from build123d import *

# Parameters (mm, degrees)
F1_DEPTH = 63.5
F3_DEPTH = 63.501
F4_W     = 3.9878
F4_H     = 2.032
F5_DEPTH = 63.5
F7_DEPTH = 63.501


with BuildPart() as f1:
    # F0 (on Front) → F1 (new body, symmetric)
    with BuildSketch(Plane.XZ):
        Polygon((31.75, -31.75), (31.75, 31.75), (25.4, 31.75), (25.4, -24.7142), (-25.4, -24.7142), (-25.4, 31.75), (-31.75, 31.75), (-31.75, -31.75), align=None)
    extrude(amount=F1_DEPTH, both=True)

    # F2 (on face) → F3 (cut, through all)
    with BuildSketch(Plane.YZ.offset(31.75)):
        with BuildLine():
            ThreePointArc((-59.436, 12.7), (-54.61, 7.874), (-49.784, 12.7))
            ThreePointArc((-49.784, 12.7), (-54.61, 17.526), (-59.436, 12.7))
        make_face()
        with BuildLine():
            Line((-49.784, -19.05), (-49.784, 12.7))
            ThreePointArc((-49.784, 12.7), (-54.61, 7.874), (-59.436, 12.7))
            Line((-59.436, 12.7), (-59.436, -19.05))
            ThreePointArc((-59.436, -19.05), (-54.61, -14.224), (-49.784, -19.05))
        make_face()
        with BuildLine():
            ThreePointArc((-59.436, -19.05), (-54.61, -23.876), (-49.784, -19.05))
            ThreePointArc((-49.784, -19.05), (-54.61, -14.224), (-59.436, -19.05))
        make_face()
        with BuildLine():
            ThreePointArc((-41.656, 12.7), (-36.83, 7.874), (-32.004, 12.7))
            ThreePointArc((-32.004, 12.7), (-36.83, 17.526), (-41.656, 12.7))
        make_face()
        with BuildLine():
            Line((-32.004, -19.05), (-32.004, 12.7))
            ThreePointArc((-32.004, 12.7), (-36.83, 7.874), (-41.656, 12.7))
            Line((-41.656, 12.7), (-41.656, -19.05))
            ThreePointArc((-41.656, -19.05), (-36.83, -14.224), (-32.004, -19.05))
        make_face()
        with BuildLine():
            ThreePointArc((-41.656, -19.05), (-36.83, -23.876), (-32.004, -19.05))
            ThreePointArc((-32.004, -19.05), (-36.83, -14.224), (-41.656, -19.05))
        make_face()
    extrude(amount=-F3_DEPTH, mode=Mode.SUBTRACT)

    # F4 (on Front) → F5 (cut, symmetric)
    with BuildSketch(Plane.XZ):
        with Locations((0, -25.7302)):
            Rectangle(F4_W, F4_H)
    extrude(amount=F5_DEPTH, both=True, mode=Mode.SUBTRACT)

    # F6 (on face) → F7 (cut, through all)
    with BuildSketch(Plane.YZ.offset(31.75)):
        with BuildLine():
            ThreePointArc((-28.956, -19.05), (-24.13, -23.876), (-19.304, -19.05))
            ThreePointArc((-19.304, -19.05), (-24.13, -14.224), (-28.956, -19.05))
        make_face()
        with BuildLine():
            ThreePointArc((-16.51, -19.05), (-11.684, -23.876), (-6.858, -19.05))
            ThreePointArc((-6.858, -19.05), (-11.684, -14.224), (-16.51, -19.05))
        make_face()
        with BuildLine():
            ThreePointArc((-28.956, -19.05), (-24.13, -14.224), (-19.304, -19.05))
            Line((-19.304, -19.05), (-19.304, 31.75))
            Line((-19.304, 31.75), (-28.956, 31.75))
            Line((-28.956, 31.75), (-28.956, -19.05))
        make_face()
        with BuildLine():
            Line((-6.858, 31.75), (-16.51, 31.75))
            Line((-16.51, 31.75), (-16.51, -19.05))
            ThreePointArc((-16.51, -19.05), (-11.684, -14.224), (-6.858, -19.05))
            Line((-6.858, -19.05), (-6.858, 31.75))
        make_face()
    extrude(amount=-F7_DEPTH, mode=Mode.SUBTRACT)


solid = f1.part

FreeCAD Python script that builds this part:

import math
import FreeCAD as App
import Part
import Sketcher
Q = App.Units.Quantity

doc = App.newDocument("Part")
body = doc.addObject("PartDesign::Body", "Body")

sketch1 = doc.addObject("Sketcher::SketchObject", "Sketch")
body.addObject(sketch1)
sketch1.AttachmentSupport = (doc.XZ_Plane, [""])
sketch1.MapMode = "FlatFace"
sketch1.addGeometry(Part.LineSegment(App.Vector(31.75, -31.75, 0), App.Vector(31.75, 31.75, 0)), False)
sketch1.addGeometry(Part.LineSegment(App.Vector(31.75, 31.75, 0), App.Vector(25.4, 31.75, 0)), False)
sketch1.addGeometry(Part.LineSegment(App.Vector(25.4, 31.75, 0), App.Vector(25.4, -24.7142, 0)), False)
sketch1.addGeometry(Part.LineSegment(App.Vector(25.4, -24.7142, 0), App.Vector(-25.4, -24.7142, 0)), False)
sketch1.addGeometry(Part.LineSegment(App.Vector(-25.4, -24.7142, 0), App.Vector(-25.4, 31.75, 0)), False)
sketch1.addGeometry(Part.LineSegment(App.Vector(-25.4, 31.75, 0), App.Vector(-31.75, 31.75, 0)), False)
sketch1.addGeometry(Part.LineSegment(App.Vector(-31.75, 31.75, 0), App.Vector(-31.75, -31.75, 0)), False)
sketch1.addGeometry(Part.LineSegment(App.Vector(-31.75, -31.75, 0), App.Vector(31.75, -31.75, 0)), False)
sketch1.addConstraint(Sketcher.Constraint("Coincident", 0, 2, 1, 1))
sketch1.addConstraint(Sketcher.Constraint("Coincident", 1, 2, 2, 1))
sketch1.addConstraint(Sketcher.Constraint("Coincident", 2, 2, 3, 1))
sketch1.addConstraint(Sketcher.Constraint("Coincident", 3, 2, 4, 1))
sketch1.addConstraint(Sketcher.Constraint("Coincident", 4, 2, 5, 1))
sketch1.addConstraint(Sketcher.Constraint("Coincident", 5, 2, 6, 1))
sketch1.addConstraint(Sketcher.Constraint("Coincident", 6, 2, 7, 1))
sketch1.addConstraint(Sketcher.Constraint("Coincident", 7, 2, 0, 1))
sketch1.addConstraint(Sketcher.Constraint("Vertical", 0))
sketch1.addConstraint(Sketcher.Constraint("Horizontal", 1))
sketch1.addConstraint(Sketcher.Constraint("Vertical", 2))
sketch1.addConstraint(Sketcher.Constraint("Horizontal", 3))
sketch1.addConstraint(Sketcher.Constraint("Vertical", 4))
sketch1.addConstraint(Sketcher.Constraint("Horizontal", 5))
sketch1.addConstraint(Sketcher.Constraint("Vertical", 6))
sketch1.addConstraint(Sketcher.Constraint("Horizontal", 7))
sketch1.addConstraint(Sketcher.Constraint("Symmetric", 0, 2, 6, 2, -1, 1))
sketch1.addConstraint(Sketcher.Constraint("Symmetric", 1, 2, 4, 2, -2))
sketch1.addConstraint(Sketcher.Constraint("Equal", 7, 0))
sketch1.addConstraint(Sketcher.Constraint("DistanceX", 3, 2, 3, 1, Q("2 in")))
sketch1.addConstraint(Sketcher.Constraint("DistanceX", 7, 1, 7, 2, Q("2.5 in")))
sketch1.addConstraint(Sketcher.Constraint("DistanceY", 2, 2, 2, 1, Q("2.223 in")))
pad1 = doc.addObject("PartDesign::Pad", "Pad")
body.addObject(pad1)
pad1.Profile = sketch1
pad1.Length = Q("5 in")
pad1.Midplane = True

sketch2 = doc.addObject("Sketcher::SketchObject", "Sketch001")
body.addObject(sketch2)
sketch2.AttachmentSupport = (doc.YZ_Plane, [""])
sketch2.MapMode = "FlatFace"
sketch2.AttachmentOffset = App.Placement(App.Vector(0, 0, 1.25 * 25.4), App.Rotation())
sketch2.addGeometry(Part.ArcOfCircle(Part.Circle(App.Vector(-54.61, 12.7, 0), App.Vector(0, 0, 1), 4.826), math.radians(0), math.radians(180)), False)
sketch2.addGeometry(Part.LineSegment(App.Vector(-59.436, 12.7, 0), App.Vector(-59.436, -19.05, 0)), False)
sketch2.addGeometry(Part.ArcOfCircle(Part.Circle(App.Vector(-54.61, -19.05, 0), App.Vector(0, 0, 1), 4.826), math.radians(180), math.radians(360)), False)
sketch2.addGeometry(Part.LineSegment(App.Vector(-49.784, -19.05, 0), App.Vector(-49.784, 12.7, 0)), False)
sketch2.addGeometry(Part.ArcOfCircle(Part.Circle(App.Vector(-36.83, 12.7, 0), App.Vector(0, 0, 1), 4.826), math.radians(0), math.radians(180)), False)
sketch2.addGeometry(Part.LineSegment(App.Vector(-41.656, 12.7, 0), App.Vector(-41.656, -19.05, 0)), False)
sketch2.addGeometry(Part.ArcOfCircle(Part.Circle(App.Vector(-36.83, -19.05, 0), App.Vector(0, 0, 1), 4.826), math.radians(180), math.radians(360)), False)
sketch2.addGeometry(Part.LineSegment(App.Vector(-32.004, -19.05, 0), App.Vector(-32.004, 12.7, 0)), False)
sketch2.addConstraint(Sketcher.Constraint("Tangent", 0, 2, 1, 1))
sketch2.addConstraint(Sketcher.Constraint("Tangent", 1, 2, 2, 1))
sketch2.addConstraint(Sketcher.Constraint("Tangent", 2, 2, 3, 1))
sketch2.addConstraint(Sketcher.Constraint("Tangent", 3, 2, 0, 1))
sketch2.addConstraint(Sketcher.Constraint("Tangent", 4, 2, 5, 1))
sketch2.addConstraint(Sketcher.Constraint("Tangent", 5, 2, 6, 1))
sketch2.addConstraint(Sketcher.Constraint("Tangent", 6, 2, 7, 1))
sketch2.addConstraint(Sketcher.Constraint("Tangent", 7, 2, 4, 1))
sketch2.addConstraint(Sketcher.Constraint("Vertical", 1))
sketch2.addConstraint(Sketcher.Constraint("Vertical", 3))
sketch2.addConstraint(Sketcher.Constraint("Vertical", 5))
sketch2.addConstraint(Sketcher.Constraint("Vertical", 7))
sketch2.addConstraint(Sketcher.Constraint("Equal", 2, 4))
sketch2.addConstraint(Sketcher.Constraint("Horizontal", 0, 3, 4, 3))
sketch2.addConstraint(Sketcher.Constraint("Horizontal", 2, 3, 6, 3))
sketch2.addConstraint(Sketcher.Constraint("Radius", 0, Q("0.19 in")))
sketch2.addConstraint(Sketcher.Constraint("DistanceY", 1, 2, 1, 1, Q("1.25 in")))
sketch2.addConstraint(Sketcher.Constraint("DistanceY", -1, 1, 0, 3, Q("0.5 in")))
sketch2.addConstraint(Sketcher.Constraint("DistanceX", 0, 3, 4, 3, Q("0.7 in")))
sketch2.addConstraint(Sketcher.Constraint("DistanceX", 0, 3, -1, 1, Q("2.15 in")))
pocket1 = doc.addObject("PartDesign::Pocket", "Pocket")
body.addObject(pocket1)
pocket1.Profile = sketch2
pocket1.Type = "ThroughAll"

sketch3 = doc.addObject("Sketcher::SketchObject", "Sketch002")
body.addObject(sketch3)
sketch3.AttachmentSupport = (doc.XZ_Plane, [""])
sketch3.MapMode = "FlatFace"
sketch3.addGeometry(Part.LineSegment(App.Vector(-1.9939, -24.7142, 0), App.Vector(-1.9939, -26.7462, 0)), False)
sketch3.addGeometry(Part.LineSegment(App.Vector(-1.9939, -26.7462, 0), App.Vector(1.9939, -26.7462, 0)), False)
sketch3.addGeometry(Part.LineSegment(App.Vector(1.9939, -26.7462, 0), App.Vector(1.9939, -24.7142, 0)), False)
sketch3.addGeometry(Part.LineSegment(App.Vector(1.9939, -24.7142, 0), App.Vector(-1.9939, -24.7142, 0)), False)
sketch3.addConstraint(Sketcher.Constraint("Coincident", 0, 2, 1, 1))
sketch3.addConstraint(Sketcher.Constraint("Coincident", 1, 2, 2, 1))
sketch3.addConstraint(Sketcher.Constraint("Coincident", 2, 2, 3, 1))
sketch3.addConstraint(Sketcher.Constraint("Coincident", 3, 2, 0, 1))
sketch3.addConstraint(Sketcher.Constraint("Vertical", 0))
sketch3.addConstraint(Sketcher.Constraint("Horizontal", 1))
sketch3.addConstraint(Sketcher.Constraint("Vertical", 2))
sketch3.addConstraint(Sketcher.Constraint("Horizontal", 3))
sketch3.addConstraint(Sketcher.Constraint("DistanceY", 0, 2, 0, 1, Q("0.08 in")))
sketch3.addConstraint(Sketcher.Constraint("DistanceX", 1, 1, 1, 2, Q("0.157 in")))
sketch3.addConstraint(Sketcher.Constraint("DistanceY", 0, 2, -1, 1, Q("1.053 in")))
sketch3.addConstraint(Sketcher.Constraint("DistanceX", 0, 2, -1, 1, Q("0.0785 in")))
pocket2 = doc.addObject("PartDesign::Pocket", "Pocket001")
body.addObject(pocket2)
pocket2.Profile = sketch3
pocket2.Length = Q("5 in")
pocket2.Midplane = True

sketch4 = doc.addObject("Sketcher::SketchObject", "Sketch003")
body.addObject(sketch4)
sketch4.AttachmentSupport = (doc.YZ_Plane, [""])
sketch4.MapMode = "FlatFace"
sketch4.AttachmentOffset = App.Placement(App.Vector(0, 0, 1.25 * 25.4), App.Rotation())
sketch4.addGeometry(Part.ArcOfCircle(Part.Circle(App.Vector(-24.13, -19.05, 0), App.Vector(0, 0, 1), 4.826), math.radians(180), math.radians(360)), False)
sketch4.addGeometry(Part.LineSegment(App.Vector(-19.304, -19.05, 0), App.Vector(-19.304, 31.75, 0)), False)
sketch4.addGeometry(Part.LineSegment(App.Vector(-19.304, 31.75, 0), App.Vector(-28.956, 31.75, 0)), False)
sketch4.addGeometry(Part.LineSegment(App.Vector(-28.956, 31.75, 0), App.Vector(-28.956, -19.05, 0)), False)
sketch4.addGeometry(Part.ArcOfCircle(Part.Circle(App.Vector(-11.684, -19.05, 0), App.Vector(0, 0, 1), 4.826), math.radians(180), math.radians(360)), False)
sketch4.addGeometry(Part.LineSegment(App.Vector(-6.858, -19.05, 0), App.Vector(-6.858, 31.75, 0)), False)
sketch4.addGeometry(Part.LineSegment(App.Vector(-6.858, 31.75, 0), App.Vector(-16.51, 31.75, 0)), False)
sketch4.addGeometry(Part.LineSegment(App.Vector(-16.51, 31.75, 0), App.Vector(-16.51, -19.05, 0)), False)
sketch4.addConstraint(Sketcher.Constraint("Tangent", 0, 2, 1, 1))
sketch4.addConstraint(Sketcher.Constraint("Coincident", 1, 2, 2, 1))
sketch4.addConstraint(Sketcher.Constraint("Coincident", 2, 2, 3, 1))
sketch4.addConstraint(Sketcher.Constraint("Tangent", 3, 2, 0, 1))
sketch4.addConstraint(Sketcher.Constraint("Tangent", 4, 2, 5, 1))
sketch4.addConstraint(Sketcher.Constraint("Coincident", 5, 2, 6, 1))
sketch4.addConstraint(Sketcher.Constraint("Coincident", 6, 2, 7, 1))
sketch4.addConstraint(Sketcher.Constraint("Tangent", 7, 2, 4, 1))
sketch4.addConstraint(Sketcher.Constraint("Vertical", 1))
sketch4.addConstraint(Sketcher.Constraint("Horizontal", 2))
sketch4.addConstraint(Sketcher.Constraint("Vertical", 3))
sketch4.addConstraint(Sketcher.Constraint("Vertical", 5))
sketch4.addConstraint(Sketcher.Constraint("Horizontal", 6))
sketch4.addConstraint(Sketcher.Constraint("Vertical", 7))
sketch4.addConstraint(Sketcher.Constraint("Equal", 0, 4))
sketch4.addConstraint(Sketcher.Constraint("Horizontal", 0, 3, 4, 3))
sketch4.addConstraint(Sketcher.Constraint("Horizontal", 2, 2, 5, 2))
sketch4.addConstraint(Sketcher.Constraint("DistanceY", 1, 1, 1, 2, Q("2 in")))
sketch4.addConstraint(Sketcher.Constraint("Radius", 0, Q("0.19 in")))
sketch4.addConstraint(Sketcher.Constraint("DistanceX", 0, 2, 4, 3, Q("0.3 in")))
sketch4.addConstraint(Sketcher.Constraint("DistanceX", 0, 3, -1, 1, Q("0.95 in")))
sketch4.addConstraint(Sketcher.Constraint("DistanceY", 0, 3, -1, 1, Q("0.75 in")))
pocket3 = doc.addObject("PartDesign::Pocket", "Pocket002")
body.addObject(pocket3)
pocket3.Profile = sketch4
pocket3.Type = "ThroughAll"

doc.recompute()
